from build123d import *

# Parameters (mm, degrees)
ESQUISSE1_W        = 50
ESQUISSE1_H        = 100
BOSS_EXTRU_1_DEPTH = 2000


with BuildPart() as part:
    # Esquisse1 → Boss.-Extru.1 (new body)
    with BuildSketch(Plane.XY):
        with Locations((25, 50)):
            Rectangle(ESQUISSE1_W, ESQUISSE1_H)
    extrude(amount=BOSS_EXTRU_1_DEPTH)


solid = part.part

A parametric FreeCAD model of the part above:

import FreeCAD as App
import Part
import Sketcher
from FreeCAD import Vector

doc = App.newDocument("Part")
params = doc.addObject("Spreadsheet::Sheet", "Params")
for row, (alias, value) in enumerate([
    ("sketch1_width", "50 mm"),
    ("sketch1_height", "100 mm"),
    ("pad1_length", "2000 mm"),
], start=1):
    params.set(f"A{row}", alias)
    params.set(f"B{row}", "=" + value)
    params.setAlias(f"B{row}", alias)

body = doc.addObject("PartDesign::Body", "Body")

sketch1 = body.newObject("Sketcher::SketchObject", "Sketch")
sketch1.AttachmentSupport = (doc.getObject("XY_Plane"), [""])
sketch1.MapMode = "FlatFace"
sketch1.addGeometry(Part.LineSegment(Vector(0, 100, 0), Vector(0, 0, 0)), False)
sketch1.addGeometry(Part.LineSegment(Vector(0, 0, 0), Vector(50, 0, 0)), False)
sketch1.addGeometry(Part.LineSegment(Vector(50, 0, 0), Vector(50, 100, 0)), False)
sketch1.addGeometry(Part.LineSegment(Vector(50, 100, 0), Vector(0, 100, 0)), False)
sketch1.addConstraint(Sketcher.Constraint("Coincident", 0, 2, 1, 1))
sketch1.addConstraint(Sketcher.Constraint("Coincident", 1, 2, 2, 1))
sketch1.addConstraint(Sketcher.Constraint("Coincident", 2, 2, 3, 1))
sketch1.addConstraint(Sketcher.Constraint("Coincident", 3, 2, 0, 1))
sketch1.addConstraint(Sketcher.Constraint("Vertical", 0))
sketch1.addConstraint(Sketcher.Constraint("Horizontal", 1))
sketch1.addConstraint(Sketcher.Constraint("Vertical", 2))
sketch1.addConstraint(Sketcher.Constraint("Horizontal", 3))
sketch1.addConstraint(Sketcher.Constraint("Coincident", 0, 2, -1, 1))
sketch1.addConstraint(Sketcher.Constraint("DistanceX", 1, 1, 1, 2, 50.0))
sketch1.addConstraint(Sketcher.Constraint("DistanceY", 0, 2, 0, 1, 100.0))
sketch1.setExpression("Constraints[9]", "Params.sketch1_width")
sketch1.setExpression("Constraints[10]", "Params.sketch1_height")
pad1 = body.newObject("PartDesign::Pad", "Pad")
pad1.Profile = sketch1
pad1.setExpression("Length", "Params.pad1_length")

doc.recompute()
